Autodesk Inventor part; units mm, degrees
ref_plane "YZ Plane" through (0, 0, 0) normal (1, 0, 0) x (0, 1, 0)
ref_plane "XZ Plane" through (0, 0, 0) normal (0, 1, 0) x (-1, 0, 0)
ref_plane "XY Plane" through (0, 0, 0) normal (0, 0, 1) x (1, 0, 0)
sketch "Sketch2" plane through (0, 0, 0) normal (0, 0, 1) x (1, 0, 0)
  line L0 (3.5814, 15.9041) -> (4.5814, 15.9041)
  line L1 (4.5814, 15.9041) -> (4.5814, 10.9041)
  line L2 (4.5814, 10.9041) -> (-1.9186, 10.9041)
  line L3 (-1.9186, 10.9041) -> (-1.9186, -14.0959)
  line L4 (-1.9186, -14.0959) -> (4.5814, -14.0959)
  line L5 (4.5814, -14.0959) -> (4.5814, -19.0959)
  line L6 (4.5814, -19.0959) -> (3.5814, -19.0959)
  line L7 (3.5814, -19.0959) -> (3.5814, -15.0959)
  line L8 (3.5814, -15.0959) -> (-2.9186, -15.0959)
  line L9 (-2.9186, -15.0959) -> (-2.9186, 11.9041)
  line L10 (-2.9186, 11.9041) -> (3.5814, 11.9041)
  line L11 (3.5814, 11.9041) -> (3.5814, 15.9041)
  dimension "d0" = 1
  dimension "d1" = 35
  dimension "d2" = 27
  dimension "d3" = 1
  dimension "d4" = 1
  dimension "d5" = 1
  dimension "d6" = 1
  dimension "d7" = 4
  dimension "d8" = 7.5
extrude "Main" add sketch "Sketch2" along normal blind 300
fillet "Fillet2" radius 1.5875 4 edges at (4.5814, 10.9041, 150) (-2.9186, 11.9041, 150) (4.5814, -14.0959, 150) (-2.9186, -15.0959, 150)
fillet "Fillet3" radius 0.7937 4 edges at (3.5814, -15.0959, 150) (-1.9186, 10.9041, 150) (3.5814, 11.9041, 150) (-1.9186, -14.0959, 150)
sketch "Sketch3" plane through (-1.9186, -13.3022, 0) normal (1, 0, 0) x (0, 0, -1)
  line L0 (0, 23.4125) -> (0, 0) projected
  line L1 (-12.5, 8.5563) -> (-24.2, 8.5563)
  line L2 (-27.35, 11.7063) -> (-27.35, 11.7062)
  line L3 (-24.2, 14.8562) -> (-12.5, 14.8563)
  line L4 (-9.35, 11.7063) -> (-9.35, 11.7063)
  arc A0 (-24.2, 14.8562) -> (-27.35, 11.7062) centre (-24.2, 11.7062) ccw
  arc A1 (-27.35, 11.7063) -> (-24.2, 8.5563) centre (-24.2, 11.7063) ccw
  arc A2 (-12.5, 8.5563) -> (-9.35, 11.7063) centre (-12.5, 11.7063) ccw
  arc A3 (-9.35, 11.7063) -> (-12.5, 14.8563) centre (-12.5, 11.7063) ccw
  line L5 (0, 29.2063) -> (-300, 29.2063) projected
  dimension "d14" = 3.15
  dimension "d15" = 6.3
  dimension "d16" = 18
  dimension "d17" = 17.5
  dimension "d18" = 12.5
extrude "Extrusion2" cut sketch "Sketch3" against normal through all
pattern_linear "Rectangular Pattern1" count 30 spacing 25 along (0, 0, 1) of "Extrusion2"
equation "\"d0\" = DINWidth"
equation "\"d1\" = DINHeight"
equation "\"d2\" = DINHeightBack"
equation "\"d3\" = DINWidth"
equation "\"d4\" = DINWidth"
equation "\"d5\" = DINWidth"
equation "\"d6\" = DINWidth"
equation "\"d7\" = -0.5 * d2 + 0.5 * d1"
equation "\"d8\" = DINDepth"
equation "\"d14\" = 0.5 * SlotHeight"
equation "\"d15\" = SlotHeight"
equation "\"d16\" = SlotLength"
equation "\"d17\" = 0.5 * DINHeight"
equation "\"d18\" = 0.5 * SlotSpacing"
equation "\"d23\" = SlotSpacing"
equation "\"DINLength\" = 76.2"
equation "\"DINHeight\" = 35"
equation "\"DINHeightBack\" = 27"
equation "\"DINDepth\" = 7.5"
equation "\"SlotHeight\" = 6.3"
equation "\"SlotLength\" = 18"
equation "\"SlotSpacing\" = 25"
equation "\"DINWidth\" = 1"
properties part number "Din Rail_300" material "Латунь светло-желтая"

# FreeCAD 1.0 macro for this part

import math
import FreeCAD as App
import Part
import Sketcher
Q = App.Units.Quantity


def edges_at(feature, points):
    """Names of the edges that pass closest to the given points."""
    edges = feature.Shape.Edges
    near = lambda p: min(range(len(edges)), key=lambda i: edges[i].distToShape(Part.Vertex(*p))[0])
    return sorted({f"Edge{near(p) + 1}" for p in points})

doc = App.newDocument("Part")
params = doc.addObject("Spreadsheet::Sheet", "Params")
for row, (alias, value) in enumerate([
    ("sketch1_width", "1 mm"),
    ("sketch1_height", "4 mm"),
    ("sketch1_height2", "27 mm"),
    ("pad1_length", "300 mm"),
    ("fillet_radius", "1.5875 mm"),
    ("fillet2_radius", "0.7937 mm"),
    ("sketch2_radius", "3.15 mm"),
    ("sketch2_height", "11.7 mm"),
    ("linearpattern_pitch", "25 mm"),
], start=1):
    params.set(f"A{row}", alias)
    params.set(f"B{row}", "=" + value)
    params.setAlias(f"B{row}", alias)

body = doc.addObject("PartDesign::Body", "Body")

# Sketch on XY plane
sketch1 = body.newObject("Sketcher::SketchObject", "Sketch")
sketch1.AttachmentSupport = (doc.getObject("XY_Plane"), [""])
sketch1.MapMode = "FlatFace"
sketch1.addGeometry([
    Part.LineSegment(App.Vector(4.6, 15.9, 0), App.Vector(3.6, 15.9, 0)),  # 0
    Part.LineSegment(App.Vector(3.6, 15.9, 0), App.Vector(3.6, 11.9, 0)),  # 1
    Part.LineSegment(App.Vector(3.6, 11.9, 0), App.Vector(-2.9, 11.9, 0)),  # 2
    Part.LineSegment(App.Vector(-2.9, 11.9, 0), App.Vector(-2.9, -15.1, 0)),  # 3
    Part.LineSegment(App.Vector(-2.9, -15.1, 0), App.Vector(3.6, -15.1, 0)),  # 4
    Part.LineSegment(App.Vector(3.6, -15.1, 0), App.Vector(3.6, -19.1, 0)),  # 5
    Part.LineSegment(App.Vector(3.6, -19.1, 0), App.Vector(4.6, -19.1, 0)),  # 6
    Part.LineSegment(App.Vector(4.6, -19.1, 0), App.Vector(4.6, -14.1, 0)),  # 7
    Part.LineSegment(App.Vector(4.6, -14.1, 0), App.Vector(-1.9, -14.1, 0)),  # 8
    Part.LineSegment(App.Vector(-1.9, -14.1, 0), App.Vector(-1.9, 10.9, 0)),  # 9
    Part.LineSegment(App.Vector(-1.9, 10.9, 0), App.Vector(4.6, 10.9, 0)),  # 10
    Part.LineSegment(App.Vector(4.6, 10.9, 0), App.Vector(4.6, 15.9, 0)),  # 11
], False)
sketch1.addConstraint([
    Sketcher.Constraint("Coincident", 0, 2, 1, 1),
    Sketcher.Constraint("Coincident", 1, 2, 2, 1),
    Sketcher.Constraint("Coincident", 2, 2, 3, 1),
    Sketcher.Constraint("Coincident", 3, 2, 4, 1),
    Sketcher.Constraint("Coincident", 4, 2, 5, 1),
    Sketcher.Constraint("Coincident", 5, 2, 6, 1),
    Sketcher.Constraint("Coincident", 6, 2, 7, 1),
    Sketcher.Constraint("Coincident", 7, 2, 8, 1),
    Sketcher.Constraint("Coincident", 8, 2, 9, 1),
    Sketcher.Constraint("Coincident", 9, 2, 10, 1),
    Sketcher.Constraint("Coincident", 10, 2, 11, 1),
    Sketcher.Constraint("Coincident", 11, 2, 0, 1),
    Sketcher.Constraint("Horizontal", 0),
    Sketcher.Constraint("Vertical", 1),
    Sketcher.Constraint("Horizontal", 2),
    Sketcher.Constraint("Vertical", 3),
    Sketcher.Constraint("Horizontal", 4),
    Sketcher.Constraint("Vertical", 5),
    Sketcher.Constraint("Horizontal", 6),
    Sketcher.Constraint("Vertical", 7),
    Sketcher.Constraint("Horizontal", 8),
    Sketcher.Constraint("Vertical", 9),
    Sketcher.Constraint("Horizontal", 10),
    Sketcher.Constraint("Vertical", 11),
    Sketcher.Constraint("Vertical", 1, 2, 4, 2),
    Sketcher.Constraint("Vertical", 7, 2, 10, 2),
    Sketcher.Constraint("Equal", 4, 8),
    Sketcher.Constraint("Equal", 1, 5),
    Sketcher.Constraint("Equal", 7, 11),
    Sketcher.Constraint("DistanceX", 0, 2, 0, 1, Q("1 mm")),
    Sketcher.Constraint("DistanceY", 1, 2, 1, 1, Q("4 mm")),
    Sketcher.Constraint("DistanceY", 3, 2, 3, 1, Q("27 mm")),
    Sketcher.Constraint("DistanceY", 4, 2, 7, 2, Q("1 mm")),
    Sketcher.Constraint("DistanceX", 3, 2, 6, 2, Q("7.5 mm")),
    Sketcher.Constraint("DistanceY", -1, 1, 0, 2, Q("15.904 mm")),
    Sketcher.Constraint("DistanceX", -1, 1, 0, 2, Q("3.5814 mm")),
])
sketch1.setExpression("Constraints[29]", "Params.sketch1_width")
sketch1.setExpression("Constraints[30]", "Params.sketch1_height")
sketch1.setExpression("Constraints[31]", "Params.sketch1_height2")
pad1 = body.newObject("PartDesign::Pad", "Pad")
pad1.Profile = sketch1
pad1.setExpression("Length", "Params.pad1_length")
doc.recompute()

fillet = body.newObject("PartDesign::Fillet", "Fillet")
fillet.Base = (pad1, edges_at(pad1, [
    (4.581, 10.904, 150),
    (-2.919, 11.904, 150),
    (4.581, -14.096, 150),
    (-2.919, -15.096, 150),
]))
fillet.setExpression("Radius", "Params.fillet_radius")
doc.recompute()

fillet2 = body.newObject("PartDesign::Fillet", "Fillet001")
fillet2.Base = (fillet, edges_at(fillet, [
    (3.581, -15.096, 150),
    (-1.919, 10.904, 150),
    (3.581, 11.904, 150),
    (-1.919, -14.096, 150),
]))
fillet2.setExpression("Radius", "Params.fillet2_radius")

# Sketch on YZ plane
sketch2 = body.newObject("Sketcher::SketchObject", "Sketch001")
sketch2.AttachmentSupport = (doc.getObject("YZ_Plane"), [""])
sketch2.MapMode = "FlatFace"
sketch2.AttachmentOffset = App.Placement(App.Vector(0, 0, -1.9186), App.Rotation())
sketch2.addGeometry([
    Part.LineSegment(App.Vector(-4.7, 24.2, 0), App.Vector(-4.7, 12.5, 0)),  # 0
    Part.ArcOfCircle(Part.Circle(App.Vector(-1.6, 12.5, 0), App.Vector(0, 0, 1), 3.2), math.radians(180), math.radians(360)),  # 1
    Part.LineSegment(App.Vector(1.6, 12.5, 0), App.Vector(1.6, 24.2, 0)),  # 2
    Part.ArcOfCircle(Part.Circle(App.Vector(-1.6, 24.2, 0), App.Vector(0, 0, 1), 3.1), math.radians(0), math.radians(90)),  # 3
    Part.ArcOfCircle(Part.Circle(App.Vector(-1.6, 24.2, 0), App.Vector(0, 0, 1), 3.2), math.radians(90), math.radians(180)),  # 4
], False)
sketch2.addConstraint([
    Sketcher.Constraint("Tangent", 0, 2, 1, 1),
    Sketcher.Constraint("Tangent", 1, 2, 2, 1),
    Sketcher.Constraint("Tangent", 2, 2, 3, 1),
    Sketcher.Constraint("Tangent", 3, 2, 4, 1),
    Sketcher.Constraint("Tangent", 4, 2, 0, 1),
    Sketcher.Constraint("Vertical", 0),
    Sketcher.Constraint("Vertical", 2),
    Sketcher.Constraint("Equal", 1, 3),
    Sketcher.Constraint("Vertical", 4, 3, 3, 2),
    Sketcher.Constraint("Radius", 1, Q("3.15 mm")),
    Sketcher.Constraint("DistanceY", -1, 1, 1, 3, Q("12.5 mm")),
    Sketcher.Constraint("DistanceY", 0, 2, 0, 1, Q("11.7 mm")),
    Sketcher.Constraint("DistanceX", 1, 3, -1, 1, Q("1.596 mm")),
])
sketch2.setExpression("Constraints[9]", "Params.sketch2_radius")
sketch2.setExpression("Constraints[11]", "Params.sketch2_height")
pocket1 = body.newObject("PartDesign::Pocket", "Pocket")
pocket1.Profile = sketch2
pocket1.Type = "ThroughAll"
doc.recompute()

linearpattern = body.newObject("PartDesign::LinearPattern", "LinearPattern")
linearpattern.Originals = [pocket1]
linearpattern.Direction = (doc.getObject("Z_Axis"), [""])
linearpattern.Mode = "offset"
linearpattern.setExpression("Offset", "Params.linearpattern_pitch")
linearpattern.Occurrences = 30
body.Tip = linearpattern

doc.recompute()
